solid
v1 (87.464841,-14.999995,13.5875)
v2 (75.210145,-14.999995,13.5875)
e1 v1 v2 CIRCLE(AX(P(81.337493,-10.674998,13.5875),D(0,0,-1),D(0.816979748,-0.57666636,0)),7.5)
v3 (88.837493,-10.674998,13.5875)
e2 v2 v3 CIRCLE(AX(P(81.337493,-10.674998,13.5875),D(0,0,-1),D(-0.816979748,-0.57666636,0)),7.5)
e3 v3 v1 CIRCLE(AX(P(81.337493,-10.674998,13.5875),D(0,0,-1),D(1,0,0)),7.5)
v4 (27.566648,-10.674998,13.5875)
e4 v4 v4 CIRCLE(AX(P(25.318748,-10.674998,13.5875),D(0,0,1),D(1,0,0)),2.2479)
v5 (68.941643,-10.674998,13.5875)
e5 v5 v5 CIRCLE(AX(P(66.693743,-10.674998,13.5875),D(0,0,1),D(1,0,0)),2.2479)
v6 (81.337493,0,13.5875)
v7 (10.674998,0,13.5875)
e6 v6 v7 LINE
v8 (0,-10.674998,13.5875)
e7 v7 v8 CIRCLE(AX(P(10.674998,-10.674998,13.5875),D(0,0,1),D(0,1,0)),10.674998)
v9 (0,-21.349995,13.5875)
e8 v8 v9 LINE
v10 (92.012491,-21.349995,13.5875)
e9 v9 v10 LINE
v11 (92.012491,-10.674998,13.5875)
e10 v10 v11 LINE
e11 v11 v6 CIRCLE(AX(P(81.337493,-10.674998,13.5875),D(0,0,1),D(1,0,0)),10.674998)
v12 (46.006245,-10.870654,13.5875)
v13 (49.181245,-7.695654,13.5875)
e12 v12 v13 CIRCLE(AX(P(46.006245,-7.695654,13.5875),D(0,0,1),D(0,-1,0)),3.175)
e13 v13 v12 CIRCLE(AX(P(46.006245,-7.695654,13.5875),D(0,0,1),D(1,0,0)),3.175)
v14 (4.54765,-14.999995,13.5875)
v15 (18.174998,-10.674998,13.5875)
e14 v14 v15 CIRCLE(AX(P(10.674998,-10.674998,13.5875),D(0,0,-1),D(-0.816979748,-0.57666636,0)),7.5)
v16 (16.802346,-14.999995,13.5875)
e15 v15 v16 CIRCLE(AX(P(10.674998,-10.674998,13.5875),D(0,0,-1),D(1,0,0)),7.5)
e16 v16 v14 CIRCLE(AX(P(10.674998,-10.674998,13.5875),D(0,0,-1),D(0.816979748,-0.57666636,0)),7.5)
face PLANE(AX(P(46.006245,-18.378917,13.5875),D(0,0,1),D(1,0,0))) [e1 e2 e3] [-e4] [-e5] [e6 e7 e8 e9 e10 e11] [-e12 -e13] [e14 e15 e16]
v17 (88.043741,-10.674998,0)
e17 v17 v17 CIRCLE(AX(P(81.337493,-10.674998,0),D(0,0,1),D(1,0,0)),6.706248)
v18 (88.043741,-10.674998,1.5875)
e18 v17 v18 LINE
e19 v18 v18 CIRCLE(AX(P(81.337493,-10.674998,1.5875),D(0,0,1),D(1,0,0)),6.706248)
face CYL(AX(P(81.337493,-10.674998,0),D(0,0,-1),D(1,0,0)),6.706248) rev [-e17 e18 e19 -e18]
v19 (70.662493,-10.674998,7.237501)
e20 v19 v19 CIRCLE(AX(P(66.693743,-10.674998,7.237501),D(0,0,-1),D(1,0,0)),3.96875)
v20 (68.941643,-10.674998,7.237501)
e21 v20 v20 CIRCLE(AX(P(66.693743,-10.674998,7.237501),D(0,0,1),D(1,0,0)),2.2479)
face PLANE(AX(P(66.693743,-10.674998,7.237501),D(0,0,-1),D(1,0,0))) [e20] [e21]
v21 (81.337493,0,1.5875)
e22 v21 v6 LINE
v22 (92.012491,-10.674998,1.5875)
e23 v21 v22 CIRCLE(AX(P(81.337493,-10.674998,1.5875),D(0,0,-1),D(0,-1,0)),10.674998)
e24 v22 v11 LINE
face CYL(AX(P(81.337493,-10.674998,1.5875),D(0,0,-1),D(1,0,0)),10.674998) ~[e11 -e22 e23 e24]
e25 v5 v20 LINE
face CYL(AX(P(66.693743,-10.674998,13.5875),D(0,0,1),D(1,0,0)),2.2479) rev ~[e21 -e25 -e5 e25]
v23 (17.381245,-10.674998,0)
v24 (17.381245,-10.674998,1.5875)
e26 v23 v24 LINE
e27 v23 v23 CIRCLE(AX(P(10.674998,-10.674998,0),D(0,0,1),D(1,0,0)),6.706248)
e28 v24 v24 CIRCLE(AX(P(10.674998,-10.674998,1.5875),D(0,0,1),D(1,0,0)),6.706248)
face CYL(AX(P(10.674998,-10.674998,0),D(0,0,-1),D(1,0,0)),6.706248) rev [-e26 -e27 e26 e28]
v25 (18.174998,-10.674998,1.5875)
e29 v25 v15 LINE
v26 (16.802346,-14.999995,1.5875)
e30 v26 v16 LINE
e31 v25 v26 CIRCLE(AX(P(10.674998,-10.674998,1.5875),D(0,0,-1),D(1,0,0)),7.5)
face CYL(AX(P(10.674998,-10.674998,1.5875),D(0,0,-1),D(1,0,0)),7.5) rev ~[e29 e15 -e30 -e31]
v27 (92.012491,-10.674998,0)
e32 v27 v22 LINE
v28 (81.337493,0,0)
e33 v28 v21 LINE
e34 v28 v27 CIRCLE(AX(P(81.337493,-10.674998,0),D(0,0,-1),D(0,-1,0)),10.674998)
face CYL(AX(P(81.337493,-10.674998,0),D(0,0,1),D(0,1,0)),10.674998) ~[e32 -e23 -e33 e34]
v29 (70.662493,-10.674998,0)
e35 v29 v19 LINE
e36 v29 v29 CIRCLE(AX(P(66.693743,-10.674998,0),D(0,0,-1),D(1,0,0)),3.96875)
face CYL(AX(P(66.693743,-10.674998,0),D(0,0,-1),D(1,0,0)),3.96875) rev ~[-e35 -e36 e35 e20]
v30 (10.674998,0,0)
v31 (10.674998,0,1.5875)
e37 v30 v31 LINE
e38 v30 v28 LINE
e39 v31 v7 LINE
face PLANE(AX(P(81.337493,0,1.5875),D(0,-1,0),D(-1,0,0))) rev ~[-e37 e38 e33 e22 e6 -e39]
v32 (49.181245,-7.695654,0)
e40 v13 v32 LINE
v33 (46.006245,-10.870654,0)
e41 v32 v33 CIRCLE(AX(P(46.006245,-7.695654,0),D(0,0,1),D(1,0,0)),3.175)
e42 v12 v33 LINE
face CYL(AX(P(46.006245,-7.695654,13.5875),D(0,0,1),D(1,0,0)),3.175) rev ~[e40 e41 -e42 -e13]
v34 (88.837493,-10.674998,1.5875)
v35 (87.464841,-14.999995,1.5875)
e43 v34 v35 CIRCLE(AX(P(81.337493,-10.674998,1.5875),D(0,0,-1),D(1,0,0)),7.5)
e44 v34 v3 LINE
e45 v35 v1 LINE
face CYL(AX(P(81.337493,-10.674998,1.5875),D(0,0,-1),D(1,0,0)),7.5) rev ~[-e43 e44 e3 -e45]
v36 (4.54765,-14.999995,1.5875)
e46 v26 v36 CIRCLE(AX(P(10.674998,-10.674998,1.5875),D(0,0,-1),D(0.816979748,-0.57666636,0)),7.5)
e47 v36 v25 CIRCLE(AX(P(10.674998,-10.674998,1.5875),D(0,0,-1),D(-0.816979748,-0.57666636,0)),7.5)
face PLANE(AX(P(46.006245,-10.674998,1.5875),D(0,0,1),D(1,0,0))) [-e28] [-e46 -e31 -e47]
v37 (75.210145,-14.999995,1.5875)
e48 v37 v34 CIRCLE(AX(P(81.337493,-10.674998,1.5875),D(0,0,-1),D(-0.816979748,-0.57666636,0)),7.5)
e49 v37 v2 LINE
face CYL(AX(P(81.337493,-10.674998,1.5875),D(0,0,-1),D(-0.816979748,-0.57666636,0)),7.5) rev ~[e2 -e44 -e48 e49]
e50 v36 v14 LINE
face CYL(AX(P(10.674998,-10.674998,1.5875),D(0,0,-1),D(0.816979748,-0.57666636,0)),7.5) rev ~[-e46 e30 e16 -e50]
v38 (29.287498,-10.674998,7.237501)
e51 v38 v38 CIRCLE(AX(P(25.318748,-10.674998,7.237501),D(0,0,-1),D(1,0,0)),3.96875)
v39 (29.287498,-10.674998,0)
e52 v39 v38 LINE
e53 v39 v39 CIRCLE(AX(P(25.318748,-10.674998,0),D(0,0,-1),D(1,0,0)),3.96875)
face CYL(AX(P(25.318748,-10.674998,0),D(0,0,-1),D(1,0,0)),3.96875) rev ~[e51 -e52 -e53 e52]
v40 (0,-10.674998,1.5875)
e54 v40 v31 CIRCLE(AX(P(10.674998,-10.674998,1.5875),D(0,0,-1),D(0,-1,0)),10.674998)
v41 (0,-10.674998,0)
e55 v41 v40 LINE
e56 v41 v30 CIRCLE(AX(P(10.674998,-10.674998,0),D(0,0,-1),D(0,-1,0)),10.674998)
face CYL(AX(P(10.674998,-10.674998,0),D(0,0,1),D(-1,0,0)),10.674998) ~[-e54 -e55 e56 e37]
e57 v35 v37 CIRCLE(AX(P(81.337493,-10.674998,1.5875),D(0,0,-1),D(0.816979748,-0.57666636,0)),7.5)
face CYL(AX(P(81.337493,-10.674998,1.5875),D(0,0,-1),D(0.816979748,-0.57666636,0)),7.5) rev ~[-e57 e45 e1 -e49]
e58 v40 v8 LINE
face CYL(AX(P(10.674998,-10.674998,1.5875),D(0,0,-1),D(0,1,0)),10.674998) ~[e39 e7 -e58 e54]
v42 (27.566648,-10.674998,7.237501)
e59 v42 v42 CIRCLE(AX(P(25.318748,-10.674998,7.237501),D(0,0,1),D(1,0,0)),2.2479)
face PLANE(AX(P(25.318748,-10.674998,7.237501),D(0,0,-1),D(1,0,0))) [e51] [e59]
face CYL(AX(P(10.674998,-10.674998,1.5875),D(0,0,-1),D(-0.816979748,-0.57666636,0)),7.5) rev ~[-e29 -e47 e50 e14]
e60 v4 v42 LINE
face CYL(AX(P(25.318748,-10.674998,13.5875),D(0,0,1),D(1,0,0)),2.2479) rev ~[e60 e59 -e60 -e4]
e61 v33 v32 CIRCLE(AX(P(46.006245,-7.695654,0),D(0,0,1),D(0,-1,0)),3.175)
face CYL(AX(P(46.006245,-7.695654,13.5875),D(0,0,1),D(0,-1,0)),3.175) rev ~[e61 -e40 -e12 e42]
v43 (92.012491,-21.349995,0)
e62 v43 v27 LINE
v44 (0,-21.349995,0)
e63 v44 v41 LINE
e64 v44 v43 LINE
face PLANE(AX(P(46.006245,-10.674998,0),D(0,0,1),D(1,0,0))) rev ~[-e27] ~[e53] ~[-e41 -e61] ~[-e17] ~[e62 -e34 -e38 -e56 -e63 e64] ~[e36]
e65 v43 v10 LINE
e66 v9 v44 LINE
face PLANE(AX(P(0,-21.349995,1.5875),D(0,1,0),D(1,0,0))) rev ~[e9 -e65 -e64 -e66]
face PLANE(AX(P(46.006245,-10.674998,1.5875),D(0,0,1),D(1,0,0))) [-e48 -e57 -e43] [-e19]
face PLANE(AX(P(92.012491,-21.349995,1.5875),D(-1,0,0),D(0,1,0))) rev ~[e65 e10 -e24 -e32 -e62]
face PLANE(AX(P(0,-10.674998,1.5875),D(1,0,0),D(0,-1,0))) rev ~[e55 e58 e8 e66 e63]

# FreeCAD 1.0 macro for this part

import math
import FreeCAD as App
import Part
import Sketcher

V = App.Vector
Q = App.Units.Quantity


def edges_at(feature, points):
    """Names of the edges that pass closest to the given points."""
    edges = feature.Shape.Edges
    near = lambda p: min(range(len(edges)), key=lambda i: edges[i].distToShape(Part.Vertex(*p))[0])
    return sorted({f"Edge{near(p) + 1}" for p in points})

doc = App.newDocument("Part")
body = doc.addObject("PartDesign::Body", "Body")

# Sketch on XY plane
sketch1 = doc.addObject("Sketcher::SketchObject", "Sketch")
body.addObject(sketch1)
sketch1.AttachmentSupport = (doc.XY_Plane, [""])
sketch1.MapMode = "FlatFace"
sketch1.addGeometry([
    Part.LineSegment(V(0, 0, 0), V(0, -21.349995, 0)),  # 0
    Part.LineSegment(V(0, -21.349995, 0), V(92.012491, -21.349995, 0)),  # 1
    Part.LineSegment(V(92.012491, -21.349995, 0), V(92.012491, 0, 0)),  # 2
    Part.LineSegment(V(92.012491, 0, 0), V(0, 0, 0)),  # 3
    Part.Circle(V(10.674998, -10.674998, 0), V(0, 0, 1), 6.706248),  # 4
    Part.Circle(V(81.337493, -10.674998, 0), V(0, 0, 1), 6.706248),  # 5
], False)
sketch1.addConstraint([
    Sketcher.Constraint("Coincident", 0, 2, 1, 1),
    Sketcher.Constraint("Coincident", 1, 2, 2, 1),
    Sketcher.Constraint("Coincident", 2, 2, 3, 1),
    Sketcher.Constraint("Coincident", 3, 2, 0, 1),
    Sketcher.Constraint("Vertical", 0),
    Sketcher.Constraint("Horizontal", 1),
    Sketcher.Constraint("Vertical", 2),
    Sketcher.Constraint("Horizontal", 3),
    Sketcher.Constraint("Coincident", 3, 2, -1, 1),
    Sketcher.Constraint("Equal", 4, 5),
    Sketcher.Constraint("Horizontal", 4, 3, 5, 3),
    Sketcher.Constraint("Diameter", 4, 13.412495),
    Sketcher.Constraint("DistanceX", 1, 1, 1, 2, 92.012491),
    Sketcher.Constraint("DistanceY", 0, 2, 0, 1, 21.349995),
    Sketcher.Constraint("DistanceX", -1, 1, 4, 3, 10.674998),
    Sketcher.Constraint("DistanceY", 4, 3, -1, 1, 10.674998),
    Sketcher.Constraint("DistanceX", -1, 1, 5, 3, 81.337493),
])
pad1 = doc.addObject("PartDesign::Pad", "Pad")
body.addObject(pad1)
pad1.Profile = sketch1
pad1.Length = Q("0.0625 in")
doc.recompute()

fillet = doc.addObject("PartDesign::Fillet", "Fillet")
body.addObject(fillet)
fillet.Base = (pad1, edges_at(pad1, [(0, 0, 0.794), (92.012, 0, 0.794)]))
fillet.Radius = 10.674998

# Sketch on XY plane
sketch2 = doc.addObject("Sketcher::SketchObject", "Sketch001")
body.addObject(sketch2)
sketch2.AttachmentSupport = (doc.XY_Plane, [""])
sketch2.MapMode = "FlatFace"
sketch2.AttachmentOffset = App.Placement(V(0, 0, 0.0625 * 25.4), App.Rotation())
sketch2.addGeometry([
    Part.LineSegment(V(0, -21.349995, 0), V(92.012491, -21.349995, 0)),  # 0
    Part.LineSegment(V(92.012491, -21.349995, 0), V(92.012491, -10.674998, 0)),  # 1
    Part.ArcOfCircle(Part.Circle(V(81.337493, -10.674998, 0), V(0, 0, 1), 10.674998), math.radians(0), math.radians(90)),  # 2
    Part.LineSegment(V(81.337493, 0, 0), V(10.674998, 0, 0)),  # 3
    Part.ArcOfCircle(Part.Circle(V(10.674998, -10.674998, 0), V(0, 0, 1), 10.674998), math.radians(90), math.radians(180)),  # 4
    Part.LineSegment(V(0, -10.674998, 0), V(0, -21.349995, 0)),  # 5
    Part.ArcOfCircle(Part.Circle(V(81.337493, -10.674998, 0), V(0, 0, 1), 7.5), math.radians(-144.783588), math.radians(-35.216412)),  # 6
    Part.ArcOfCircle(Part.Circle(V(81.337493, -10.674998, 0), V(0, 0, 1), 7.5), math.radians(0), math.radians(215.216412)),  # 7
    Part.ArcOfCircle(Part.Circle(V(81.337493, -10.674998, 0), V(0, 0, 1), 7.5), math.radians(-35.216412), math.radians(0)),  # 8
    Part.ArcOfCircle(Part.Circle(V(10.674998, -10.674998, 0), V(0, 0, 1), 7.5), math.radians(-144.783588), math.radians(-35.216412)),  # 9
    Part.ArcOfCircle(Part.Circle(V(10.674998, -10.674998, 0), V(0, 0, 1), 7.5), math.radians(0), math.radians(215.216412)),  # 10
    Part.ArcOfCircle(Part.Circle(V(10.674998, -10.674998, 0), V(0, 0, 1), 7.5), math.radians(-35.216412), math.radians(0)),  # 11
], False)
sketch2.addConstraint([
    Sketcher.Constraint("Coincident", 0, 2, 1, 1),
    Sketcher.Constraint("Tangent", 1, 2, 2, 1),
    Sketcher.Constraint("Tangent", 2, 2, 3, 1),
    Sketcher.Constraint("Tangent", 3, 2, 4, 1),
    Sketcher.Constraint("Tangent", 4, 2, 5, 1),
    Sketcher.Constraint("Coincident", 5, 2, 0, 1),
    Sketcher.Constraint("Tangent", 6, 1, 7, 2),
    Sketcher.Constraint("Tangent", 7, 1, 8, 2),
    Sketcher.Constraint("Tangent", 8, 1, 6, 2),
    Sketcher.Constraint("Tangent", 9, 1, 10, 2),
    Sketcher.Constraint("Tangent", 10, 1, 11, 2),
    Sketcher.Constraint("Tangent", 11, 1, 9, 2),
    Sketcher.Constraint("Horizontal", 0),
    Sketcher.Constraint("Vertical", 1),
    Sketcher.Constraint("Horizontal", 3),
    Sketcher.Constraint("Vertical", 5),
    Sketcher.Constraint("Coincident", 6, 3, 2, 3),
    Sketcher.Constraint("Coincident", 9, 3, 4, 3),
    Sketcher.Constraint("Equal", 2, 4),
    Sketcher.Constraint("Equal", 8, 9),
    Sketcher.Constraint("PointOnObject", 2, 2, -1),
    Sketcher.Constraint("PointOnObject", 4, 2, -2),
    Sketcher.Constraint("Horizontal", 4, 2, 7, 1),
    Sketcher.Constraint("Horizontal", 6, 1, 8, 1),
    Sketcher.Constraint("Horizontal", 8, 1, 9, 1),
    Sketcher.Constraint("Horizontal", 7, 1, 10, 1),
    Sketcher.Constraint("Horizontal", 9, 1, 11, 1),
    Sketcher.Constraint("Radius", 6, 7.5),
    Sketcher.Constraint("DistanceX", 7, 1, 1, 2, Q("0.1249999 in")),
    Sketcher.Constraint("DistanceX", 0, 1, 0, 2, 92.012491),
    Sketcher.Constraint("DistanceY", 1, 1, 1, 2, 10.674998),
    Sketcher.Constraint("DistanceX", -1, 1, 8, 1, 87.464841),
])
pad2 = doc.addObject("PartDesign::Pad", "Pad001")
body.addObject(pad2)
pad2.Profile = sketch2
pad2.Length = 12

# Sketch on XY plane
sketch3 = doc.addObject("Sketcher::SketchObject", "Sketch002")
body.addObject(sketch3)
sketch3.AttachmentSupport = (doc.XY_Plane, [""])
sketch3.MapMode = "FlatFace"
sketch3.AttachmentOffset = App.Placement(V(0, 0, 13.5875), App.Rotation())
sketch3.addGeometry([
    Part.Circle(V(25.318748, -10.674998, 0), V(0, 0, 1), 2.2479),
    Part.Circle(V(66.693743, -10.674998, 0), V(0, 0, 1), 2.2479),
    Part.ArcOfCircle(Part.Circle(V(46.006245, -7.695654, 0), V(0, 0, 1), 3.175), math.radians(-90), math.radians(0)),
    Part.ArcOfCircle(Part.Circle(V(46.006245, -7.695654, 0), V(0, 0, 1), 3.175), math.radians(0), math.radians(270)),
], False)
sketch3.addConstraint([
    Sketcher.Constraint("Tangent", 2, 1, 3, 2),
    Sketcher.Constraint("Coincident", 3, 1, 2, 2),
    Sketcher.Constraint("Equal", 0, 1),
    Sketcher.Constraint("Horizontal", 0, 3, 1, 3),
    Sketcher.Constraint("Horizontal", 2, 3, 3, 1),
    Sketcher.Constraint("Vertical", 3, 3, 2, 1),
    Sketcher.Constraint("Diameter", 0, Q("0.177 in")),
    Sketcher.Constraint("Radius", 2, Q("0.125 in")),
    Sketcher.Constraint("DistanceX", -1, 1, 0, 3, 25.318748),
    Sketcher.Constraint("DistanceY", 0, 3, -1, 1, 10.674998),
    Sketcher.Constraint("DistanceX", -1, 1, 1, 3, 66.693743),
    Sketcher.Constraint("DistanceX", -1, 1, 2, 3, 46.006245),
    Sketcher.Constraint("DistanceY", 2, 3, -1, 1, 7.695654),
])
pocket1 = doc.addObject("PartDesign::Pocket", "Pocket")
body.addObject(pocket1)
pocket1.Profile = sketch3
pocket1.Type = "ThroughAll"

# Sketch on XY plane
sketch4 = doc.addObject("Sketcher::SketchObject", "Sketch003")
body.addObject(sketch4)
sketch4.AttachmentSupport = (doc.XY_Plane, [""])
sketch4.MapMode = "FlatFace"
sketch4.addGeometry([
    Part.Circle(V(66.693743, -10.674998, 0), V(0, 0, 1), 3.96875),
    Part.Circle(V(25.318748, -10.674998, 0), V(0, 0, 1), 3.96875),
], False)
sketch4.addConstraint([
    Sketcher.Constraint("Equal", 0, 1),
    Sketcher.Constraint("Horizontal", 0, 3, 1, 3),
    Sketcher.Constraint("Diameter", 0, Q("0.3125 in")),
    Sketcher.Constraint("DistanceX", -1, 1, 0, 3, 66.693743),
    Sketcher.Constraint("DistanceY", 0, 3, -1, 1, 10.674998),
    Sketcher.Constraint("DistanceX", -1, 1, 1, 3, 25.318748),
])
pocket2 = doc.addObject("PartDesign::Pocket", "Pocket001")
body.addObject(pocket2)
pocket2.Profile = sketch4
pocket2.Length = 7.237501
pocket2.Reversed = True

doc.recompute()
